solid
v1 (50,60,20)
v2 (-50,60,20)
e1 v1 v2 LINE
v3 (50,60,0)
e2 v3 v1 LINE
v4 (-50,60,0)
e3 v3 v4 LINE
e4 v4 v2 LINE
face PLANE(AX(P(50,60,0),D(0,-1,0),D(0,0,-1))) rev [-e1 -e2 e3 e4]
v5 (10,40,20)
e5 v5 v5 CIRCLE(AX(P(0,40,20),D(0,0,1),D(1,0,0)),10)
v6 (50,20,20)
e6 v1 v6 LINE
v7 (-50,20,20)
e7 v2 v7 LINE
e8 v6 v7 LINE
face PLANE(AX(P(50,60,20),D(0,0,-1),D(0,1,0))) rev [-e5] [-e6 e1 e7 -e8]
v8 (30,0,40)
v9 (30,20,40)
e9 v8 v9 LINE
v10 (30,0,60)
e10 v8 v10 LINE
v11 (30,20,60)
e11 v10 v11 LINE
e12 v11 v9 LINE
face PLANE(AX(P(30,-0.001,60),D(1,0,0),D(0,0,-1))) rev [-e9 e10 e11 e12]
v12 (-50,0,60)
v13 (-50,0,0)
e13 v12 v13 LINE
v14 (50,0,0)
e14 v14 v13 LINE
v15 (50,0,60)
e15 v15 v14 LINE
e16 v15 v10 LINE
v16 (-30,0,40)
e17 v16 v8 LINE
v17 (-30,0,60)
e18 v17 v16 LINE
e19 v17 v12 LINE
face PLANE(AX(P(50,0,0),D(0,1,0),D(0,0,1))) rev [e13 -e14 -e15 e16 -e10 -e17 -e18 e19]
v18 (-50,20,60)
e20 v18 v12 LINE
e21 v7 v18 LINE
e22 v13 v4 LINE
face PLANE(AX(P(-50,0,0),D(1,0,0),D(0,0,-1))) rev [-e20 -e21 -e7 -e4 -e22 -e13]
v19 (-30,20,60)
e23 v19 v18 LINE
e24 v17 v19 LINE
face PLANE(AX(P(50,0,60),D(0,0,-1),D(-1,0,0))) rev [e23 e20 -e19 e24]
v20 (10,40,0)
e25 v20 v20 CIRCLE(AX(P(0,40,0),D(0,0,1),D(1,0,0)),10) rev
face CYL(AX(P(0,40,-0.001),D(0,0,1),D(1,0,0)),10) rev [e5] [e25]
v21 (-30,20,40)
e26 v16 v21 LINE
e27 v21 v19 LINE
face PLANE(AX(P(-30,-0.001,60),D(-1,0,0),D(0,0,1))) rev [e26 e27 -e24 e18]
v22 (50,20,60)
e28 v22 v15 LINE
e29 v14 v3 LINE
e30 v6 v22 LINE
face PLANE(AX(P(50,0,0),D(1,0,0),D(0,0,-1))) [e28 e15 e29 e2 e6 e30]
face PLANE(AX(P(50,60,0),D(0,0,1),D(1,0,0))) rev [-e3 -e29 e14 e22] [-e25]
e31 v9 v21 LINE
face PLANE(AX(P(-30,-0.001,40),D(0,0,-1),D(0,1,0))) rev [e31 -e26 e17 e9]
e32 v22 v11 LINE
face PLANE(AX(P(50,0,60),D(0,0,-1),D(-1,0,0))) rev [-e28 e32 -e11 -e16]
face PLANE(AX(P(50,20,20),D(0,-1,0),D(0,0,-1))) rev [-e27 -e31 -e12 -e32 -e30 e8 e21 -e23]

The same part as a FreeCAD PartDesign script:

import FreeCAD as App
import Part
import Sketcher


def add_polygon(sketch, points):
    """Adds a closed chain of lines whose ends are joined by coincident constraints."""
    first, n = sketch.GeometryCount, len(points)
    for a, b in zip(points, points[1:] + points[:1]):
        sketch.addGeometry(Part.LineSegment(App.Vector(*a, 0), App.Vector(*b, 0)), False)
    for i in range(n):
        sketch.addConstraint(Sketcher.Constraint("Coincident", first + i, 2, first + (i + 1) % n, 1))

doc = App.newDocument("Part")
params = doc.addObject("Spreadsheet::Sheet", "Params")
for row, (alias, value) in enumerate([
    ("sketch1_width", "60 mm"),
    ("sketch1_width2", "40 mm"),
    ("pad1_length", "100 mm"),
    ("sketch2_width", "60 mm"),
    ("sketch2_height", "20 mm"),
    ("sketch3_diameter", "20 mm"),
], start=1):
    params.set(f"A{row}", alias)
    params.set(f"B{row}", "=" + value)
    params.setAlias(f"B{row}", alias)

body = doc.addObject("PartDesign::Body", "Body")

# Sketch on YZ plane
sketch1 = body.newObject("Sketcher::SketchObject", "Sketch")
sketch1.AttachmentSupport = (doc.getObject("YZ_Plane"), [""])
sketch1.MapMode = "FlatFace"
add_polygon(sketch1, [(0, 0), (60, 0), (60, 20), (20, 20), (20, 60), (0, 60)])  # lines 0-5
sketch1.addConstraint([
    Sketcher.Constraint("Horizontal", 0),
    Sketcher.Constraint("Vertical", 1),
    Sketcher.Constraint("Horizontal", 2),
    Sketcher.Constraint("Vertical", 3),
    Sketcher.Constraint("Horizontal", 4),
    Sketcher.Constraint("Vertical", 5),
    Sketcher.Constraint("Coincident", 5, 2, -1, 1),
    Sketcher.Constraint("Equal", 4, 1),
    Sketcher.Constraint("Equal", 2, 3),
    Sketcher.Constraint("DistanceX", 0, 1, 0, 2, 60.0),
    Sketcher.Constraint("DistanceX", 2, 2, 2, 1, 40.0),
])
sketch1.setExpression("Constraints[15]", "Params.sketch1_width")
sketch1.setExpression("Constraints[16]", "Params.sketch1_width2")
pad1 = body.newObject("PartDesign::Pad", "Pad")
pad1.Profile = sketch1
pad1.setExpression("Length", "Params.pad1_length")
pad1.Midplane = True

# Sketch on XZ plane
sketch2 = body.newObject("Sketcher::SketchObject", "Sketch001")
sketch2.AttachmentSupport = (doc.getObject("XZ_Plane"), [""])
sketch2.MapMode = "FlatFace"
sketch2.AttachmentOffset = App.Placement(App.Vector(0, 0, -20), App.Rotation())
add_polygon(sketch2, [(-30, 40), (-30, 60), (30, 60), (30, 40)])  # lines 0-3
sketch2.addConstraint([
    Sketcher.Constraint("Vertical", 0),
    Sketcher.Constraint("Horizontal", 1),
    Sketcher.Constraint("Vertical", 2),
    Sketcher.Constraint("Horizontal", 3),
    Sketcher.Constraint("DistanceX", 1, 1, 1, 2, 60.0),
    Sketcher.Constraint("DistanceY", 0, 1, 0, 2, 20.0),
    Sketcher.Constraint("DistanceX", 0, 2, -1, 1, 30.0),
    Sketcher.Constraint("DistanceY", -1, 1, 0, 2, 60.0),
])
sketch2.setExpression("Constraints[8]", "Params.sketch2_width")
sketch2.setExpression("Constraints[9]", "Params.sketch2_height")
pocket1 = body.newObject("PartDesign::Pocket", "Pocket")
pocket1.Profile = sketch2
pocket1.Type = "UpToFirst"
pocket1.Reversed = True

# Sketch on XY plane
sketch3 = body.newObject("Sketcher::SketchObject", "Sketch002")
sketch3.AttachmentSupport = (doc.getObject("XY_Plane"), [""])
sketch3.MapMode = "FlatFace"
sketch3.AttachmentOffset = App.Placement(App.Vector(0, 0, 20), App.Rotation())
sketch3.addGeometry(Part.Circle(App.Vector(0, 40, 0), App.Vector(0, 0, 1), 10), False)
sketch3.addConstraint([
    Sketcher.Constraint("PointOnObject", 0, 3, -2),
    Sketcher.Constraint("Diameter", 0, 20.0),
    Sketcher.Constraint("DistanceY", -1, 1, 0, 3, 40.0),
])
sketch3.setExpression("Constraints[1]", "Params.sketch3_diameter")
pocket2 = body.newObject("PartDesign::Pocket", "Pocket001")
pocket2.Profile = sketch3
pocket2.Type = "UpToFirst"

doc.recompute()
